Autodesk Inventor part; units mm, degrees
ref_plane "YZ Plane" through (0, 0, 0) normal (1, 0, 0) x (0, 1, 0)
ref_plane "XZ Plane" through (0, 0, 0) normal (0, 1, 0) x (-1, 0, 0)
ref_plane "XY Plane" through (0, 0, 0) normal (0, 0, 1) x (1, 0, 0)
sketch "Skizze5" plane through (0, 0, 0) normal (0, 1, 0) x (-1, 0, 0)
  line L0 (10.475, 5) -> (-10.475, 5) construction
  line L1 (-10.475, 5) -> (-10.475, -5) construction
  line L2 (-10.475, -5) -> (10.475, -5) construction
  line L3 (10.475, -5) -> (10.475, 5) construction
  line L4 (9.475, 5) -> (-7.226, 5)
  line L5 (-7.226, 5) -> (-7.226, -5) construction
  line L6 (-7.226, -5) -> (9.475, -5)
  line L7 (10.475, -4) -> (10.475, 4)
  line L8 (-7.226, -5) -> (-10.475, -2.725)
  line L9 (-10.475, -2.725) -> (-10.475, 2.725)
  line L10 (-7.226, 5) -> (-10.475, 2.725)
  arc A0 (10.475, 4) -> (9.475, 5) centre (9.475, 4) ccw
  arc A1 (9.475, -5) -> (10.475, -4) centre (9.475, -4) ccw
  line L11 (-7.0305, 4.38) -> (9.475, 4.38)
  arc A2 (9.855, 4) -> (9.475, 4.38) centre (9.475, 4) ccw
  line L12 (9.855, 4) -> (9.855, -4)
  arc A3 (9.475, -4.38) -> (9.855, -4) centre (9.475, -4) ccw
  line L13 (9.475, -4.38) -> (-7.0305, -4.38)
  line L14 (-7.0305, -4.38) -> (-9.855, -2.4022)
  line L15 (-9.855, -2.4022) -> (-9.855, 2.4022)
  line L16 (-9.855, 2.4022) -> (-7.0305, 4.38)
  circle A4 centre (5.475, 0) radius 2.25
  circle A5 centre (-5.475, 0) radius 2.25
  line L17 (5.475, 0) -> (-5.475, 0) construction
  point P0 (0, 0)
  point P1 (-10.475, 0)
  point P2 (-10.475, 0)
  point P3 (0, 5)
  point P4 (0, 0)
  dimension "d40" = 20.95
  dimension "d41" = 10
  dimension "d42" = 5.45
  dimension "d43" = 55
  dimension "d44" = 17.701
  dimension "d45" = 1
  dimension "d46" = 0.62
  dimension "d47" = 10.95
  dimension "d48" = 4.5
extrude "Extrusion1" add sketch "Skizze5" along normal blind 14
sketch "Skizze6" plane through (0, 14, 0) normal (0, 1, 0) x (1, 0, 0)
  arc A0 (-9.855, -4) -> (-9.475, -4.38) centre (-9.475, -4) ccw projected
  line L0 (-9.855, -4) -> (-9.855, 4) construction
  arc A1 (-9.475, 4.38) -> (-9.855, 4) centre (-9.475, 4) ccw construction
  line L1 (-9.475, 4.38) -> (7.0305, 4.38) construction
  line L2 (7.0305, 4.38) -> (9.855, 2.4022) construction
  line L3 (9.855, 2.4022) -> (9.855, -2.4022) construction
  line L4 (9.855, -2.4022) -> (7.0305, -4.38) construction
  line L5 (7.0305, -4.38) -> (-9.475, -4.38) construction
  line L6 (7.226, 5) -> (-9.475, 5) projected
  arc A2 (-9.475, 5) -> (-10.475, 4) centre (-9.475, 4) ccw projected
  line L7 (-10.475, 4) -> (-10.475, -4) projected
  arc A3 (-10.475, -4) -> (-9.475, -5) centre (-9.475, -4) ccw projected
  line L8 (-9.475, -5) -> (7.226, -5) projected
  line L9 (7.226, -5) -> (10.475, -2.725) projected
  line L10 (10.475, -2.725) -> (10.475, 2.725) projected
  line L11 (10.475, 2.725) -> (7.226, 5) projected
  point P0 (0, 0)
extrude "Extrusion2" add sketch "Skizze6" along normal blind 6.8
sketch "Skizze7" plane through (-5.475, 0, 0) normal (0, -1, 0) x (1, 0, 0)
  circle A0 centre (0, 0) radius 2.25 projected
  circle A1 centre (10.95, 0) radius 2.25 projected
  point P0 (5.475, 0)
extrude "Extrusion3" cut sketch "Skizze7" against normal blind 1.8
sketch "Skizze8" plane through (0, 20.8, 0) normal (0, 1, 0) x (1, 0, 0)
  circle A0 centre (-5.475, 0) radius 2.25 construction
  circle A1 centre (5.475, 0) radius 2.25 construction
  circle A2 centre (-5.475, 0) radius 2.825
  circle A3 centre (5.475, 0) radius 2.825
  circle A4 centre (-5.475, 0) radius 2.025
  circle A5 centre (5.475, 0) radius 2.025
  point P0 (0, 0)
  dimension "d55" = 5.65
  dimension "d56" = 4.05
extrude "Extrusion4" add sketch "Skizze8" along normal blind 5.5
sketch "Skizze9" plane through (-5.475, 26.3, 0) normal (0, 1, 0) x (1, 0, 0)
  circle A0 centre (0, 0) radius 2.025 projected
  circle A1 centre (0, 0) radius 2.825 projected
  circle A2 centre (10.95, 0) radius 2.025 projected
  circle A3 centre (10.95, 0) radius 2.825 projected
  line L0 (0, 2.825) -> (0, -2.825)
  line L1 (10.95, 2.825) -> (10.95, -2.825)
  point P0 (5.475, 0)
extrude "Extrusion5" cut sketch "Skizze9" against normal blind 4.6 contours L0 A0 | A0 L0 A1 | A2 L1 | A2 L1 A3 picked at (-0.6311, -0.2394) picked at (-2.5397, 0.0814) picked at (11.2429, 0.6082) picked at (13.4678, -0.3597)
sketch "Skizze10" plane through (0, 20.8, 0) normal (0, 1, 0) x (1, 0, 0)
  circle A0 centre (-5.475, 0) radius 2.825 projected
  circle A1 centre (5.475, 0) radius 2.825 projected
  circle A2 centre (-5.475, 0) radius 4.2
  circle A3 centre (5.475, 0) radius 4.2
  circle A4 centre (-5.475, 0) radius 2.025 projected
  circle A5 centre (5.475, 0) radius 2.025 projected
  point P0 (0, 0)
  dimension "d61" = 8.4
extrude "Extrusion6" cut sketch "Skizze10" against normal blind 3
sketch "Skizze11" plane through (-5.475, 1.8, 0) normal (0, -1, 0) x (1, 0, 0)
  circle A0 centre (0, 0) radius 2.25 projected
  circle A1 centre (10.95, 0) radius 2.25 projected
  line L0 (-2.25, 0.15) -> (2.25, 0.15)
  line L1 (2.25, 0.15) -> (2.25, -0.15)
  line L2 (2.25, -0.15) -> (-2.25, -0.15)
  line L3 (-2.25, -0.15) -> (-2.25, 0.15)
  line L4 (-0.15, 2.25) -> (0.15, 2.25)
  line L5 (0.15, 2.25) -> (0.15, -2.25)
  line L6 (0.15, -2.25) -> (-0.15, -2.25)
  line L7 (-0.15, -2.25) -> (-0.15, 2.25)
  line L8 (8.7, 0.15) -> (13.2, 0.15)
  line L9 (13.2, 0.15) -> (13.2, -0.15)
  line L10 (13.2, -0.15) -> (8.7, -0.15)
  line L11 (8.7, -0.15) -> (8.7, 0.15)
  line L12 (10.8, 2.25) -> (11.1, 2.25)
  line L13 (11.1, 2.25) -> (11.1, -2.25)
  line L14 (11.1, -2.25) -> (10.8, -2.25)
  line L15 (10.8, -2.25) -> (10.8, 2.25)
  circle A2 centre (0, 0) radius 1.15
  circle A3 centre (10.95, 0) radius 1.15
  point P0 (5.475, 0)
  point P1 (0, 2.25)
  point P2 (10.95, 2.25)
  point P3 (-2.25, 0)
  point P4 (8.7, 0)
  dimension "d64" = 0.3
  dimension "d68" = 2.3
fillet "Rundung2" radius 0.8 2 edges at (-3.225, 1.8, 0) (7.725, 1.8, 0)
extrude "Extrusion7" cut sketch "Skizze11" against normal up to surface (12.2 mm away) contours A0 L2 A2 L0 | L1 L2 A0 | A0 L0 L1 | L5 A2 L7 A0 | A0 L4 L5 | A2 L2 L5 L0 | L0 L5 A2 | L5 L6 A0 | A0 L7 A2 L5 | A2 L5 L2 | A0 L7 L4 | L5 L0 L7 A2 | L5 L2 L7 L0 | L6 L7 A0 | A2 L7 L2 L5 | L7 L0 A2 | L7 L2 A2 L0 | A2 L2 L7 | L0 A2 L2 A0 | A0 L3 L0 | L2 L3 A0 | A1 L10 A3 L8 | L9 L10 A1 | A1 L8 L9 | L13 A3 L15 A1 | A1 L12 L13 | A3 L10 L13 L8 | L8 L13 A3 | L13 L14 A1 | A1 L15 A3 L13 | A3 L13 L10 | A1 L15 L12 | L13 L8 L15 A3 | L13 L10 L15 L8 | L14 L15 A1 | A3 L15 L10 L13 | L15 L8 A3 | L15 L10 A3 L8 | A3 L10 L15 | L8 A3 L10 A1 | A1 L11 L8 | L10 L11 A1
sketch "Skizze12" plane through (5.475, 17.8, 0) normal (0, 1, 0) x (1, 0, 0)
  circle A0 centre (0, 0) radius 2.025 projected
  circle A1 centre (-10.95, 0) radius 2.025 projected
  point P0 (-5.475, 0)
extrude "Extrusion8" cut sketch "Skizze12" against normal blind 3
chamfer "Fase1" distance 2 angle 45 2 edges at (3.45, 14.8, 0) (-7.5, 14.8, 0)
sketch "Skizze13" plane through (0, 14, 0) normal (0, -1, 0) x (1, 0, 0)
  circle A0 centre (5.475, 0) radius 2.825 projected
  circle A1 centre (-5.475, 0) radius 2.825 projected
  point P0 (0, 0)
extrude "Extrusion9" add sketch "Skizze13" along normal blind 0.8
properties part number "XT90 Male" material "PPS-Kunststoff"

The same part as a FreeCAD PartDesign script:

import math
import FreeCAD as App
import Part
import Sketcher

V = App.Vector
Q = App.Units.Quantity


def edges_at(feature, points):
    """Names of the edges that pass closest to the given points."""
    edges = feature.Shape.Edges
    near = lambda p: min(range(len(edges)), key=lambda i: edges[i].distToShape(Part.Vertex(*p))[0])
    return sorted({f"Edge{near(p) + 1}" for p in points})

doc = App.newDocument("Part")
body = doc.addObject("PartDesign::Body", "Body")
body.AllowCompound = True

sketch1 = body.newObject("Sketcher::SketchObject", "Sketch")
sketch1.AttachmentSupport = (doc.getObject("XZ_Plane"), [""])
sketch1.MapMode = "FlatFace"
sketch1.addGeometry(Part.ArcOfCircle(Part.Circle(V(-9.47, 4, 0), V(0, 0, 1), 1), math.radians(90), math.radians(180)), False)
sketch1.addGeometry(Part.LineSegment(V(-9.47, 5, 0), V(7.23, 5, 0)), False)
sketch1.addGeometry(Part.LineSegment(V(7.23, 5, 0), V(10.47, 2.73, 0)), False)
sketch1.addGeometry(Part.LineSegment(V(10.47, 2.73, 0), V(10.47, -2.73, 0)), False)
sketch1.addGeometry(Part.LineSegment(V(10.47, -2.73, 0), V(7.23, -5, 0)), False)
sketch1.addGeometry(Part.LineSegment(V(7.23, -5, 0), V(-9.47, -5, 0)), False)
sketch1.addGeometry(Part.ArcOfCircle(Part.Circle(V(-9.47, -4, 0), V(0, 0, 1), 1), math.radians(180), math.radians(270)), False)
sketch1.addGeometry(Part.LineSegment(V(-10.47, -4, 0), V(-10.47, 4, 0)), False)
sketch1.addGeometry(Part.LineSegment(V(9.86, 2.4, 0), V(7.03, 4.38, 0)), False)
sketch1.addGeometry(Part.LineSegment(V(7.03, 4.38, 0), V(-9.47, 4.38, 0)), False)
sketch1.addGeometry(Part.ArcOfCircle(Part.Circle(V(-9.47, 4, 0), V(0, 0, 1), 0.38), math.radians(90), math.radians(180)), False)
sketch1.addGeometry(Part.LineSegment(V(-9.86, 4, 0), V(-9.86, -4, 0)), False)
sketch1.addGeometry(Part.ArcOfCircle(Part.Circle(V(-9.47, -4, 0), V(0, 0, 1), 0.38), math.radians(180), math.radians(270)), False)
sketch1.addGeometry(Part.LineSegment(V(-9.47, -4.38, 0), V(7.03, -4.38, 0)), False)
sketch1.addGeometry(Part.LineSegment(V(7.03, -4.38, 0), V(9.86, -2.4, 0)), False)
sketch1.addGeometry(Part.LineSegment(V(9.86, -2.4, 0), V(9.86, 2.4, 0)), False)
sketch1.addGeometry(Part.Circle(V(-5.47, 0, 0), V(0, 0, 1), 2.25), False)
sketch1.addGeometry(Part.Circle(V(5.47, 0, 0), V(0, 0, 1), 2.25), False)
sketch1.addConstraint(Sketcher.Constraint("Tangent", 0, 1, 1, 1))
sketch1.addConstraint(Sketcher.Constraint("Coincident", 1, 2, 2, 1))
sketch1.addConstraint(Sketcher.Constraint("Coincident", 2, 2, 3, 1))
sketch1.addConstraint(Sketcher.Constraint("Coincident", 3, 2, 4, 1))
sketch1.addConstraint(Sketcher.Constraint("Coincident", 4, 2, 5, 1))
sketch1.addConstraint(Sketcher.Constraint("Tangent", 5, 2, 6, 2))
sketch1.addConstraint(Sketcher.Constraint("Tangent", 6, 1, 7, 1))
sketch1.addConstraint(Sketcher.Constraint("Tangent", 7, 2, 0, 2))
sketch1.addConstraint(Sketcher.Constraint("Coincident", 8, 2, 9, 1))
sketch1.addConstraint(Sketcher.Constraint("Tangent", 9, 2, 10, 1))
sketch1.addConstraint(Sketcher.Constraint("Tangent", 10, 2, 11, 1))
sketch1.addConstraint(Sketcher.Constraint("Tangent", 11, 2, 12, 1))
sketch1.addConstraint(Sketcher.Constraint("Tangent", 12, 2, 13, 1))
sketch1.addConstraint(Sketcher.Constraint("Coincident", 13, 2, 14, 1))
sketch1.addConstraint(Sketcher.Constraint("Coincident", 14, 2, 15, 1))
sketch1.addConstraint(Sketcher.Constraint("Coincident", 15, 2, 8, 1))
sketch1.addConstraint(Sketcher.Constraint("Horizontal", 1))
sketch1.addConstraint(Sketcher.Constraint("Vertical", 3))
sketch1.addConstraint(Sketcher.Constraint("Horizontal", 5))
sketch1.addConstraint(Sketcher.Constraint("Vertical", 7))
sketch1.addConstraint(Sketcher.Constraint("Horizontal", 9))
sketch1.addConstraint(Sketcher.Constraint("Vertical", 11))
sketch1.addConstraint(Sketcher.Constraint("Horizontal", 13))
sketch1.addConstraint(Sketcher.Constraint("Vertical", 15))
sketch1.addConstraint(Sketcher.Constraint("Coincident", 10, 3, 0, 3))
sketch1.addConstraint(Sketcher.Constraint("Coincident", 12, 3, 6, 3))
sketch1.addConstraint(Sketcher.Constraint("Equal", 0, 6))
sketch1.addConstraint(Sketcher.Constraint("Equal", 16, 17))
sketch1.addConstraint(Sketcher.Constraint("Symmetric", 16, 3, 17, 3, -1, 1))
sketch1.addConstraint(Sketcher.Constraint("Symmetric", 1, 2, 4, 2, -1))
sketch1.addConstraint(Sketcher.Constraint("PointOnObject", 16, 3, -1))
sketch1.addConstraint(Sketcher.Constraint("Parallel", 2, 8))
sketch1.addConstraint(Sketcher.Constraint("Parallel", 4, 14))
sketch1.addConstraint(Sketcher.Constraint("Vertical", 8, 2, 13, 2))
sketch1.addConstraint(Sketcher.Constraint("Equal", 2, 4))
sketch1.addConstraint(Sketcher.Constraint("Radius", 0, 1.0))
sketch1.addConstraint(Sketcher.Constraint("Diameter", 16, 4.5))
sketch1.addConstraint(Sketcher.Constraint("DistanceY", 4, 2, 1, 2, 10.0))
sketch1.addConstraint(Sketcher.Constraint("DistanceY", 3, 2, 3, 1, 5.45))
sketch1.addConstraint(Sketcher.Constraint("Angle", 2, Q("-35.0003 deg")))
sketch1.addConstraint(Sketcher.Constraint("Radius", 10, 0.38))
sketch1.addConstraint(Sketcher.Constraint("DistanceX", 16, 3, 17, 3, 10.95))
sketch1.addConstraint(Sketcher.Constraint("DistanceX", 14, 2, 3, 2, 0.62))
sketch1.addConstraint(Sketcher.Constraint("DistanceX", 0, 3, 16, 3, 4.0))
sketch1.addConstraint(Sketcher.Constraint("DistanceX", 17, 3, 2, 2, 5.0))
sketch1.addConstraint(Sketcher.Constraint("Distance", 8, 3.448))
pad1 = body.newObject("PartDesign::Pad", "Pad")
pad1.Profile = sketch1
pad1.Length = 14
pad1.Reversed = True

sketch2 = body.newObject("Sketcher::SketchObject", "Sketch001")
sketch2.AttachmentSupport = (doc.getObject("XZ_Plane"), [""])
sketch2.MapMode = "FlatFace"
sketch2.AttachmentOffset = App.Placement(V(0, 0, -14), App.Rotation())
sketch2.addGeometry(Part.LineSegment(V(10.5, -2.7, 0), V(7.2, -5, 0)), False)
sketch2.addGeometry(Part.LineSegment(V(7.2, -5, 0), V(-9.5, -5, 0)), False)
sketch2.addGeometry(Part.ArcOfCircle(Part.Circle(V(-9.5, -4, 0), V(0, 0, 1), 1), math.radians(180), math.radians(270)), False)
sketch2.addGeometry(Part.LineSegment(V(-10.5, -4, 0), V(-10.5, 4, 0)), False)
sketch2.addGeometry(Part.ArcOfCircle(Part.Circle(V(-9.5, 4, 0), V(0, 0, 1), 1), math.radians(90), math.radians(180)), False)
sketch2.addGeometry(Part.LineSegment(V(-9.5, 5, 0), V(7.2, 5, 0)), False)
sketch2.addGeometry(Part.LineSegment(V(7.2, 5, 0), V(10.5, 2.7, 0)), False)
sketch2.addGeometry(Part.LineSegment(V(10.5, 2.7, 0), V(10.5, -2.7, 0)), False)
sketch2.addConstraint(Sketcher.Constraint("Coincident", 0, 2, 1, 1))
sketch2.addConstraint(Sketcher.Constraint("Tangent", 1, 2, 2, 2))
sketch2.addConstraint(Sketcher.Constraint("Tangent", 2, 1, 3, 1))
sketch2.addConstraint(Sketcher.Constraint("Tangent", 3, 2, 4, 2))
sketch2.addConstraint(Sketcher.Constraint("Tangent", 4, 1, 5, 1))
sketch2.addConstraint(Sketcher.Constraint("Coincident", 5, 2, 6, 1))
sketch2.addConstraint(Sketcher.Constraint("Coincident", 6, 2, 7, 1))
sketch2.addConstraint(Sketcher.Constraint("Coincident", 7, 2, 0, 1))
sketch2.addConstraint(Sketcher.Constraint("Horizontal", 1))
sketch2.addConstraint(Sketcher.Constraint("Vertical", 3))
sketch2.addConstraint(Sketcher.Constraint("Horizontal", 5))
sketch2.addConstraint(Sketcher.Constraint("Vertical", 7))
sketch2.addConstraint(Sketcher.Constraint("Equal", 2, 4))
sketch2.addConstraint(Sketcher.Constraint("Symmetric", 0, 2, 5, 2, -1))
sketch2.addConstraint(Sketcher.Constraint("Equal", 0, 6))
sketch2.addConstraint(Sketcher.Constraint("Radius", 2, 1.0))
sketch2.addConstraint(Sketcher.Constraint("DistanceY", 3, 1, 3, 2, 8.0))
sketch2.addConstraint(Sketcher.Constraint("Angle", 0, Q("-144.9997 deg")))
sketch2.addConstraint(Sketcher.Constraint("DistanceY", 7, 2, 7, 1, 5.45))
sketch2.addConstraint(Sketcher.Constraint("DistanceX", 1, 2, 1, 1, 16.701))
sketch2.addConstraint(Sketcher.Constraint("DistanceX", 2, 3, -1, 1, 9.475))
pad2 = body.newObject("PartDesign::Pad", "Pad001")
pad2.Profile = sketch2
pad2.Length = 6.8
pad2.Reversed = True

sketch3 = body.newObject("Sketcher::SketchObject", "Sketch002")
sketch3.AttachmentSupport = (doc.getObject("XZ_Plane"), [""])
sketch3.MapMode = "FlatFace"
sketch3.addGeometry(Part.Circle(V(-5.5, 0, 0), V(0, 0, 1), 2.2), False)
sketch3.addGeometry(Part.Circle(V(5.5, 0, 0), V(0, 0, 1), 2.2), False)
sketch3.addConstraint(Sketcher.Constraint("Equal", 0, 1))
sketch3.addConstraint(Sketcher.Constraint("Symmetric", 0, 3, 1, 3, -1, 1))
sketch3.addConstraint(Sketcher.Constraint("PointOnObject", 0, 3, -1))
sketch3.addConstraint(Sketcher.Constraint("Diameter", 0, 4.5))
sketch3.addConstraint(Sketcher.Constraint("DistanceX", 0, 3, 1, 3, 10.95))
pocket1 = body.newObject("PartDesign::Pocket", "Pocket")
pocket1.Profile = sketch3
pocket1.Length = 1.8

sketch4 = body.newObject("Sketcher::SketchObject", "Sketch003")
sketch4.AttachmentSupport = (doc.getObject("XZ_Plane"), [""])
sketch4.MapMode = "FlatFace"
sketch4.AttachmentOffset = App.Placement(V(0, 0, -20.8), App.Rotation())
sketch4.addGeometry(Part.Circle(V(-5.5, 0, 0), V(0, 0, 1), 2.8), False)
sketch4.addGeometry(Part.Circle(V(-5.5, 0, 0), V(0, 0, 1), 2), False)
sketch4.addGeometry(Part.Circle(V(5.5, 0, 0), V(0, 0, 1), 2.8), False)
sketch4.addGeometry(Part.Circle(V(5.5, 0, 0), V(0, 0, 1), 2), False)
sketch4.addConstraint(Sketcher.Constraint("Coincident", 1, 3, 0, 3))
sketch4.addConstraint(Sketcher.Constraint("Coincident", 3, 3, 2, 3))
sketch4.addConstraint(Sketcher.Constraint("Equal", 0, 2))
sketch4.addConstraint(Sketcher.Constraint("Equal", 1, 3))
sketch4.addConstraint(Sketcher.Constraint("Symmetric", 0, 3, 2, 3, -1, 1))
sketch4.addConstraint(Sketcher.Constraint("PointOnObject", 0, 3, -1))
sketch4.addConstraint(Sketcher.Constraint("Diameter", 0, 5.65))
sketch4.addConstraint(Sketcher.Constraint("Diameter", 1, 4.05))
sketch4.addConstraint(Sketcher.Constraint("DistanceX", 0, 3, 2, 3, 10.95))
pad3 = body.newObject("PartDesign::Pad", "Pad002")
pad3.Profile = sketch4
pad3.Length = 5.5
pad3.Reversed = True

sketch5 = body.newObject("Sketcher::SketchObject", "Sketch004")
sketch5.AttachmentSupport = (doc.getObject("XZ_Plane"), [""])
sketch5.MapMode = "FlatFace"
sketch5.AttachmentOffset = App.Placement(V(0, 0, -26.3), App.Rotation())
sketch5.addGeometry(Part.ArcOfCircle(Part.Circle(V(-5.5, 0, 0), V(0, 0, 1), 2.8), math.radians(90), math.radians(270)), False)
sketch5.addGeometry(Part.LineSegment(V(-5.5, 2.8, 0), V(-5.5, -2.8, 0)), False)
sketch5.addGeometry(Part.ArcOfCircle(Part.Circle(V(5.5, 0, 0), V(0, 0, 1), 2.8), math.radians(-90), math.radians(90)), False)
sketch5.addGeometry(Part.LineSegment(V(5.5, -2.8, 0), V(5.5, 2.8, 0)), False)
sketch5.addConstraint(Sketcher.Constraint("Coincident", 0, 1, 1, 1))
sketch5.addConstraint(Sketcher.Constraint("Coincident", 1, 2, 0, 2))
sketch5.addConstraint(Sketcher.Constraint("Coincident", 2, 1, 3, 1))
sketch5.addConstraint(Sketcher.Constraint("Coincident", 3, 2, 2, 2))
sketch5.addConstraint(Sketcher.Constraint("Vertical", 1))
sketch5.addConstraint(Sketcher.Constraint("Vertical", 3))
sketch5.addConstraint(Sketcher.Constraint("Equal", 0, 2))
sketch5.addConstraint(Sketcher.Constraint("Symmetric", 0, 3, 2, 3, -1, 1))
sketch5.addConstraint(Sketcher.Constraint("Symmetric", 1, 2, 2, 1, -2))
sketch5.addConstraint(Sketcher.Constraint("Radius", 0, 2.825))
sketch5.addConstraint(Sketcher.Constraint("DistanceX", 0, 3, 2, 3, 10.95))
sketch5.addConstraint(Sketcher.Constraint("DistanceX", 0, 1, 2, 3, 10.95))
pocket2 = body.newObject("PartDesign::Pocket", "Pocket001")
pocket2.Profile = sketch5
pocket2.Length = 4.6
pocket2.Reversed = True

sketch6 = body.newObject("Sketcher::SketchObject", "Sketch005")
sketch6.AttachmentSupport = (doc.getObject("XZ_Plane"), [""])
sketch6.MapMode = "FlatFace"
sketch6.AttachmentOffset = App.Placement(V(0, 0, -20.8), App.Rotation())
sketch6.addGeometry(Part.Circle(V(-5.5, 0, 0), V(0, 0, 1), 4.2), False)
sketch6.addGeometry(Part.Circle(V(-5.5, 0, 0), V(0, 0, 1), 2.8), False)
sketch6.addGeometry(Part.Circle(V(5.5, 0, 0), V(0, 0, 1), 4.2), False)
sketch6.addGeometry(Part.Circle(V(5.5, 0, 0), V(0, 0, 1), 2.8), False)
sketch6.addGeometry(Part.Circle(V(-5.5, 0, 0), V(0, 0, 1), 2), False)
sketch6.addGeometry(Part.Circle(V(5.5, 0, 0), V(0, 0, 1), 2), False)
sketch6.addConstraint(Sketcher.Constraint("Coincident", 1, 3, 0, 3))
sketch6.addConstraint(Sketcher.Constraint("Coincident", 3, 3, 2, 3))
sketch6.addConstraint(Sketcher.Constraint("Coincident", 4, 3, 0, 3))
sketch6.addConstraint(Sketcher.Constraint("Coincident", 5, 3, 2, 3))
sketch6.addConstraint(Sketcher.Constraint("Equal", 0, 2))
sketch6.addConstraint(Sketcher.Constraint("Equal", 1, 3))
sketch6.addConstraint(Sketcher.Constraint("Equal", 4, 5))
sketch6.addConstraint(Sketcher.Constraint("Symmetric", 0, 3, 2, 3, -1, 1))
sketch6.addConstraint(Sketcher.Constraint("PointOnObject", 0, 3, -1))
sketch6.addConstraint(Sketcher.Constraint("Diameter", 0, 8.4))
sketch6.addConstraint(Sketcher.Constraint("Diameter", 1, 5.65))
sketch6.addConstraint(Sketcher.Constraint("Diameter", 4, 4.05))
sketch6.addConstraint(Sketcher.Constraint("DistanceX", 0, 3, 2, 3, 10.95))
pocket3 = body.newObject("PartDesign::Pocket", "Pocket002")
pocket3.Profile = sketch6
pocket3.Length = 3
pocket3.Reversed = True
doc.recompute()

fillet = body.newObject("PartDesign::Fillet", "Fillet")
fillet.Base = (pocket3, edges_at(pocket3, [(-3.225, 1.8, 0), (7.725, 1.8, 0)]))
fillet.Radius = 0.8

sketch7 = body.newObject("Sketcher::SketchObject", "Sketch006")
sketch7.AttachmentSupport = (doc.getObject("XZ_Plane"), [""])
sketch7.MapMode = "FlatFace"
sketch7.AttachmentOffset = App.Placement(V(0, 0, -1.8), App.Rotation())
sketch7.addGeometry(Part.LineSegment(V(-4.33, -0.15, 0), V(-3.23, -0.15, 0)), False)
sketch7.addGeometry(Part.LineSegment(V(-3.23, -0.15, 0), V(-3.23, 0.15, 0)), False)
sketch7.addGeometry(Part.LineSegment(V(-3.23, 0.15, 0), V(-4.33, 0.15, 0)), False)
sketch7.addGeometry(Part.ArcOfCircle(Part.Circle(V(-5.47, 0, 0), V(0, 0, 1), 1.15), math.radians(7), math.radians(83)), False)
sketch7.addGeometry(Part.LineSegment(V(-5.33, 1.14, 0), V(-5.33, 2.25, 0)), False)
sketch7.addGeometry(Part.LineSegment(V(-5.33, 2.25, 0), V(-5.62, 2.25, 0)), False)
sketch7.addGeometry(Part.LineSegment(V(-5.62, 2.25, 0), V(-5.62, 1.14, 0)), False)
sketch7.addGeometry(Part.ArcOfCircle(Part.Circle(V(-5.47, 0, 0), V(0, 0, 1), 1.15), math.radians(97), math.radians(173)), False)
sketch7.addGeometry(Part.LineSegment(V(-6.62, 0.15, 0), V(-7.72, 0.15, 0)), False)
sketch7.addGeometry(Part.LineSegment(V(-7.72, 0.15, 0), V(-7.72, -0.15, 0)), False)
sketch7.addGeometry(Part.LineSegment(V(-7.72, -0.15, 0), V(-6.62, -0.15, 0)), False)
sketch7.addGeometry(Part.ArcOfCircle(Part.Circle(V(-5.47, 0, 0), V(0, 0, 1), 1.15), math.radians(-173), math.radians(-97)), False)
sketch7.addGeometry(Part.LineSegment(V(-5.62, -1.14, 0), V(-5.62, -2.25, 0)), False)
sketch7.addGeometry(Part.LineSegment(V(-5.62, -2.25, 0), V(-5.33, -2.25, 0)), False)
sketch7.addGeometry(Part.LineSegment(V(-5.33, -2.25, 0), V(-5.33, -1.14, 0)), False)
sketch7.addGeometry(Part.ArcOfCircle(Part.Circle(V(-5.47, 0, 0), V(0, 0, 1), 1.15), math.radians(-83), math.radians(-7)), False)
sketch7.addGeometry(Part.LineSegment(V(6.62, -0.15, 0), V(7.72, -0.15, 0)), False)
sketch7.addGeometry(Part.LineSegment(V(7.72, -0.15, 0), V(7.72, 0.15, 0)), False)
sketch7.addGeometry(Part.LineSegment(V(7.72, 0.15, 0), V(6.62, 0.15, 0)), False)
sketch7.addGeometry(Part.ArcOfCircle(Part.Circle(V(5.47, 0, 0), V(0, 0, 1), 1.15), math.radians(7), math.radians(83)), False)
sketch7.addGeometry(Part.LineSegment(V(5.62, 1.14, 0), V(5.62, 2.25, 0)), False)
sketch7.addGeometry(Part.LineSegment(V(5.62, 2.25, 0), V(5.33, 2.25, 0)), False)
sketch7.addGeometry(Part.LineSegment(V(5.33, 2.25, 0), V(5.33, 1.14, 0)), False)
sketch7.addGeometry(Part.ArcOfCircle(Part.Circle(V(5.47, 0, 0), V(0, 0, 1), 1.15), math.radians(97), math.radians(173)), False)
sketch7.addGeometry(Part.LineSegment(V(4.33, 0.15, 0), V(3.23, 0.15, 0)), False)
sketch7.addGeometry(Part.LineSegment(V(3.23, 0.15, 0), V(3.23, -0.15, 0)), False)
sketch7.addGeometry(Part.LineSegment(V(3.23, -0.15, 0), V(4.33, -0.15, 0)), False)
sketch7.addGeometry(Part.ArcOfCircle(Part.Circle(V(5.47, 0, 0), V(0, 0, 1), 1.15), math.radians(-173), math.radians(-97)), False)
sketch7.addGeometry(Part.LineSegment(V(5.33, -1.14, 0), V(5.33, -2.25, 0)), False)
sketch7.addGeometry(Part.LineSegment(V(5.33, -2.25, 0), V(5.62, -2.25, 0)), False)
sketch7.addGeometry(Part.LineSegment(V(5.62, -2.25, 0), V(5.62, -1.14, 0)), False)
sketch7.addGeometry(Part.ArcOfCircle(Part.Circle(V(5.47, 0, 0), V(0, 0, 1), 1.15), math.radians(-83), math.radians(-7)), False)
sketch7.addConstraint(Sketcher.Constraint("Coincident", 0, 2, 1, 1))
sketch7.addConstraint(Sketcher.Constraint("Coincident", 1, 2, 2, 1))
sketch7.addConstraint(Sketcher.Constraint("Coincident", 2, 2, 3, 1))
sketch7.addConstraint(Sketcher.Constraint("Coincident", 3, 2, 4, 1))
sketch7.addConstraint(Sketcher.Constraint("Coincident", 4, 2, 5, 1))
sketch7.addConstraint(Sketcher.Constraint("Coincident", 5, 2, 6, 1))
sketch7.addConstraint(Sketcher.Constraint("Coincident", 6, 2, 7, 1))
sketch7.addConstraint(Sketcher.Constraint("Coincident", 7, 2, 8, 1))
sketch7.addConstraint(Sketcher.Constraint("Coincident", 8, 2, 9, 1))
sketch7.addConstraint(Sketcher.Constraint("Coincident", 9, 2, 10, 1))
sketch7.addConstraint(Sketcher.Constraint("Coincident", 10, 2, 11, 1))
sketch7.addConstraint(Sketcher.Constraint("Coincident", 11, 2, 12, 1))
sketch7.addConstraint(Sketcher.Constraint("Coincident", 12, 2, 13, 1))
sketch7.addConstraint(Sketcher.Constraint("Coincident", 13, 2, 14, 1))
sketch7.addConstraint(Sketcher.Constraint("Coincident", 14, 2, 15, 1))
sketch7.addConstraint(Sketcher.Constraint("Coincident", 15, 2, 0, 1))
sketch7.addConstraint(Sketcher.Constraint("Coincident", 16, 2, 17, 1))
sketch7.addConstraint(Sketcher.Constraint("Coincident", 17, 2, 18, 1))
sketch7.addConstraint(Sketcher.Constraint("Coincident", 18, 2, 19, 1))
sketch7.addConstraint(Sketcher.Constraint("Coincident", 19, 2, 20, 1))
sketch7.addConstraint(Sketcher.Constraint("Coincident", 20, 2, 21, 1))
sketch7.addConstraint(Sketcher.Constraint("Coincident", 21, 2, 22, 1))
sketch7.addConstraint(Sketcher.Constraint("Coincident", 22, 2, 23, 1))
sketch7.addConstraint(Sketcher.Constraint("Coincident", 23, 2, 24, 1))
sketch7.addConstraint(Sketcher.Constraint("Coincident", 24, 2, 25, 1))
sketch7.addConstraint(Sketcher.Constraint("Coincident", 25, 2, 26, 1))
sketch7.addConstraint(Sketcher.Constraint("Coincident", 26, 2, 27, 1))
sketch7.addConstraint(Sketcher.Constraint("Coincident", 27, 2, 28, 1))
sketch7.addConstraint(Sketcher.Constraint("Coincident", 28, 2, 29, 1))
sketch7.addConstraint(Sketcher.Constraint("Coincident", 29, 2, 30, 1))
sketch7.addConstraint(Sketcher.Constraint("Coincident", 30, 2, 31, 1))
sketch7.addConstraint(Sketcher.Constraint("Coincident", 31, 2, 16, 1))
sketch7.addConstraint(Sketcher.Constraint("Horizontal", 0))
sketch7.addConstraint(Sketcher.Constraint("Vertical", 1))
sketch7.addConstraint(Sketcher.Constraint("Horizontal", 2))
sketch7.addConstraint(Sketcher.Constraint("Vertical", 4))
sketch7.addConstraint(Sketcher.Constraint("Horizontal", 5))
sketch7.addConstraint(Sketcher.Constraint("Vertical", 6))
sketch7.addConstraint(Sketcher.Constraint("Horizontal", 8))
sketch7.addConstraint(Sketcher.Constraint("Vertical", 9))
sketch7.addConstraint(Sketcher.Constraint("Horizontal", 10))
sketch7.addConstraint(Sketcher.Constraint("Vertical", 12))
sketch7.addConstraint(Sketcher.Constraint("Horizontal", 13))
sketch7.addConstraint(Sketcher.Constraint("Vertical", 14))
sketch7.addConstraint(Sketcher.Constraint("Horizontal", 16))
sketch7.addConstraint(Sketcher.Constraint("Vertical", 17))
sketch7.addConstraint(Sketcher.Constraint("Horizontal", 18))
sketch7.addConstraint(Sketcher.Constraint("Vertical", 20))
sketch7.addConstraint(Sketcher.Constraint("Horizontal", 21))
sketch7.addConstraint(Sketcher.Constraint("Vertical", 22))
sketch7.addConstraint(Sketcher.Constraint("Horizontal", 24))
sketch7.addConstraint(Sketcher.Constraint("Vertical", 25))
sketch7.addConstraint(Sketcher.Constraint("Horizontal", 26))
sketch7.addConstraint(Sketcher.Constraint("Vertical", 28))
sketch7.addConstraint(Sketcher.Constraint("Horizontal", 29))
sketch7.addConstraint(Sketcher.Constraint("Vertical", 30))
sketch7.addConstraint(Sketcher.Constraint("Coincident", 7, 3, 3, 3))
sketch7.addConstraint(Sketcher.Constraint("Coincident", 11, 3, 3, 3))
sketch7.addConstraint(Sketcher.Constraint("Coincident", 15, 3, 3, 3))
sketch7.addConstraint(Sketcher.Constraint("Coincident", 23, 3, 19, 3))
sketch7.addConstraint(Sketcher.Constraint("Coincident", 27, 3, 19, 3))
sketch7.addConstraint(Sketcher.Constraint("Coincident", 31, 3, 19, 3))
sketch7.addConstraint(Sketcher.Constraint("Equal", 3, 7))
sketch7.addConstraint(Sketcher.Constraint("Equal", 7, 11))
sketch7.addConstraint(Sketcher.Constraint("Equal", 11, 15))
sketch7.addConstraint(Sketcher.Constraint("Equal", 15, 19))
sketch7.addConstraint(Sketcher.Constraint("Equal", 19, 23))
sketch7.addConstraint(Sketcher.Constraint("Equal", 23, 27))
sketch7.addConstraint(Sketcher.Constraint("Equal", 27, 31))
sketch7.addConstraint(Sketcher.Constraint("Symmetric", 3, 3, 19, 3, -1, 1))
sketch7.addConstraint(Sketcher.Constraint("Symmetric", 8, 2, 16, 2, -1, 1))
sketch7.addConstraint(Sketcher.Constraint("Symmetric", 12, 2, 20, 2, -1, 1))
sketch7.addConstraint(Sketcher.Constraint("Symmetric", 0, 2, 24, 2, -1, 1))
sketch7.addConstraint(Sketcher.Constraint("Symmetric", 4, 2, 28, 2, -1, 1))
sketch7.addConstraint(Sketcher.Constraint("Symmetric", 7, 2, 18, 2, -2))
sketch7.addConstraint(Sketcher.Constraint("Symmetric", 5, 2, 20, 2, -2))
sketch7.addConstraint(Sketcher.Constraint("Horizontal", 3, 2, 6, 2))
sketch7.addConstraint(Sketcher.Constraint("Horizontal", 2, 2, 7, 2))
sketch7.addConstraint(Sketcher.Constraint("Horizontal", 0, 2, 9, 2))
sketch7.addConstraint(Sketcher.Constraint("Horizontal", 11, 2, 14, 2))
sketch7.addConstraint(Sketcher.Constraint("Horizontal", 15, 2, 16, 2))
sketch7.addConstraint(Sketcher.Constraint("Horizontal", 19, 2, 22, 2))
sketch7.addConstraint(Sketcher.Constraint("Horizontal", 16, 2, 25, 2))
sketch7.addConstraint(Sketcher.Constraint("Horizontal", 27, 2, 30, 2))
sketch7.addConstraint(Sketcher.Constraint("Equal", 2, 8))
sketch7.addConstraint(Sketcher.Constraint("Equal", 29, 1))
sketch7.addConstraint(Sketcher.Constraint("Equal", 26, 4))
sketch7.addConstraint(Sketcher.Constraint("Radius", 3, 1.15))
sketch7.addConstraint(Sketcher.Constraint("DistanceX", 5, 2, 5, 1, 0.3))
sketch7.addConstraint(Sketcher.Constraint("DistanceX", 0, 2, 19, 3, 8.7))
sketch7.addConstraint(Sketcher.Constraint("DistanceY", -1, 1, 4, 2, 2.25))
pocket4 = body.newObject("PartDesign::Pocket", "Pocket003")
pocket4.Profile = sketch7
pocket4.Length = 12.2

sketch8 = body.newObject("Sketcher::SketchObject", "Sketch007")
sketch8.AttachmentSupport = (doc.getObject("XZ_Plane"), [""])
sketch8.MapMode = "FlatFace"
sketch8.AttachmentOffset = App.Placement(V(0, 0, -17.8), App.Rotation())
sketch8.addGeometry(Part.Circle(V(5.5, 0, 0), V(0, 0, 1), 2), False)
sketch8.addGeometry(Part.Circle(V(-5.5, 0, 0), V(0, 0, 1), 2), False)
sketch8.addConstraint(Sketcher.Constraint("Equal", 0, 1))
sketch8.addConstraint(Sketcher.Constraint("Symmetric", 0, 3, 1, 3, -1, 1))
sketch8.addConstraint(Sketcher.Constraint("PointOnObject", 0, 3, -1))
sketch8.addConstraint(Sketcher.Constraint("Diameter", 0, 4.05))
sketch8.addConstraint(Sketcher.Constraint("DistanceX", 1, 3, 0, 3, 10.95))
pocket5 = body.newObject("PartDesign::Pocket", "Pocket004")
pocket5.Profile = sketch8
pocket5.Length = 3
pocket5.Reversed = True
doc.recompute()

chamfer = body.newObject("PartDesign::Chamfer", "Chamfer")
chamfer.Base = (pocket5, edges_at(pocket5, [(3.45, 14.8, 0), (-7.5, 14.8, 0)]))
chamfer.Size = 2

sketch9 = body.newObject("Sketcher::SketchObject", "Sketch008")
sketch9.AttachmentSupport = (doc.getObject("XZ_Plane"), [""])
sketch9.MapMode = "FlatFace"
sketch9.AttachmentOffset = App.Placement(V(0, 0, -14), App.Rotation())
sketch9.addGeometry(Part.Circle(V(5.5, 0, 0), V(0, 0, 1), 2.8), False)
sketch9.addGeometry(Part.Circle(V(-5.5, 0, 0), V(0, 0, 1), 2.8), False)
sketch9.addConstraint(Sketcher.Constraint("Equal", 0, 1))
sketch9.addConstraint(Sketcher.Constraint("Symmetric", 0, 3, 1, 3, -1, 1))
sketch9.addConstraint(Sketcher.Constraint("PointOnObject", 0, 3, -1))
sketch9.addConstraint(Sketcher.Constraint("Diameter", 0, 5.65))
sketch9.addConstraint(Sketcher.Constraint("DistanceX", 1, 3, 0, 3, 10.95))
pad4 = body.newObject("PartDesign::Pad", "Pad003")
pad4.Profile = sketch9
pad4.Length = 0.8

doc.recompute()
